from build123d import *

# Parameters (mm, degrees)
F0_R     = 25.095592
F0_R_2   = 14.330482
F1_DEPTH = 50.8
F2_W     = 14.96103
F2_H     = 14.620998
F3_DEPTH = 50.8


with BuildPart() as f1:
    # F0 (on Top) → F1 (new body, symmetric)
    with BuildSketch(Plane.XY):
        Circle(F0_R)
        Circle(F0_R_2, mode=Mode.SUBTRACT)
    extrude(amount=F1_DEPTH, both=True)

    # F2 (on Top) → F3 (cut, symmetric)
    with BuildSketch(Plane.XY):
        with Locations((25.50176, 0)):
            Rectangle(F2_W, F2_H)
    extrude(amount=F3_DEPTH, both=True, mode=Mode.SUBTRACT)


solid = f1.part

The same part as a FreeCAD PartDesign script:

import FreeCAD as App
import Part
import Sketcher
from FreeCAD import Vector

doc = App.newDocument("Part")
params = doc.addObject("Spreadsheet::Sheet", "Params")
for row, (alias, value) in enumerate([
    ("pad1_length", "4 in"),
    ("pocket1_length", "4 in"),
], start=1):
    params.set(f"A{row}", alias)
    params.set(f"B{row}", "=" + value)
    params.setAlias(f"B{row}", alias)

body = doc.addObject("PartDesign::Body", "Body")

# Sketch on XY plane
sketch1 = body.newObject("Sketcher::SketchObject", "Sketch")
sketch1.AttachmentSupport = (doc.getObject("XY_Plane"), [""])
sketch1.MapMode = "FlatFace"
sketch1.addGeometry(Part.Circle(Vector(0, 0, 0), Vector(0, 0, 1), 25), False)
sketch1.addGeometry(Part.Circle(Vector(0, 0, 0), Vector(0, 0, 1), 14), False)
sketch1.addConstraint(Sketcher.Constraint("Coincident", 0, 3, -1, 1))
sketch1.addConstraint(Sketcher.Constraint("Coincident", 1, 3, -1, 1))
sketch1.addConstraint(Sketcher.Constraint("Diameter", 0, 50.191184))
sketch1.addConstraint(Sketcher.Constraint("Diameter", 1, 28.660964))
pad1 = body.newObject("PartDesign::Pad", "Pad")
pad1.Profile = sketch1
pad1.setExpression("Length", "Params.pad1_length")
pad1.Midplane = True

# Sketch on XY plane
sketch2 = body.newObject("Sketcher::SketchObject", "Sketch001")
sketch2.AttachmentSupport = (doc.getObject("XY_Plane"), [""])
sketch2.MapMode = "FlatFace"
sketch2.addGeometry(Part.LineSegment(Vector(18, 7, 0), Vector(18, -7, 0)), False)
sketch2.addGeometry(Part.LineSegment(Vector(18, -7, 0), Vector(33, -7, 0)), False)
sketch2.addGeometry(Part.LineSegment(Vector(33, -7, 0), Vector(33, 7, 0)), False)
sketch2.addGeometry(Part.LineSegment(Vector(33, 7, 0), Vector(18, 7, 0)), False)
sketch2.addConstraint(Sketcher.Constraint("Coincident", 0, 2, 1, 1))
sketch2.addConstraint(Sketcher.Constraint("Coincident", 1, 2, 2, 1))
sketch2.addConstraint(Sketcher.Constraint("Coincident", 2, 2, 3, 1))
sketch2.addConstraint(Sketcher.Constraint("Coincident", 3, 2, 0, 1))
sketch2.addConstraint(Sketcher.Constraint("Vertical", 0))
sketch2.addConstraint(Sketcher.Constraint("Horizontal", 1))
sketch2.addConstraint(Sketcher.Constraint("Vertical", 2))
sketch2.addConstraint(Sketcher.Constraint("Horizontal", 3))
sketch2.addConstraint(Sketcher.Constraint("DistanceX", 1, 1, 1, 2, 14.96103))
sketch2.addConstraint(Sketcher.Constraint("DistanceY", 0, 2, -1, 1, 7.310499))
sketch2.addConstraint(Sketcher.Constraint("DistanceY", -1, 1, 2, 2, 7.310499))
sketch2.addConstraint(Sketcher.Constraint("DistanceX", -1, 1, 0, 2, 18.021245))
pocket1 = body.newObject("PartDesign::Pocket", "Pocket")
pocket1.Profile = sketch2
pocket1.setExpression("Length", "Params.pocket1_length")
pocket1.Midplane = True

doc.recompute()
